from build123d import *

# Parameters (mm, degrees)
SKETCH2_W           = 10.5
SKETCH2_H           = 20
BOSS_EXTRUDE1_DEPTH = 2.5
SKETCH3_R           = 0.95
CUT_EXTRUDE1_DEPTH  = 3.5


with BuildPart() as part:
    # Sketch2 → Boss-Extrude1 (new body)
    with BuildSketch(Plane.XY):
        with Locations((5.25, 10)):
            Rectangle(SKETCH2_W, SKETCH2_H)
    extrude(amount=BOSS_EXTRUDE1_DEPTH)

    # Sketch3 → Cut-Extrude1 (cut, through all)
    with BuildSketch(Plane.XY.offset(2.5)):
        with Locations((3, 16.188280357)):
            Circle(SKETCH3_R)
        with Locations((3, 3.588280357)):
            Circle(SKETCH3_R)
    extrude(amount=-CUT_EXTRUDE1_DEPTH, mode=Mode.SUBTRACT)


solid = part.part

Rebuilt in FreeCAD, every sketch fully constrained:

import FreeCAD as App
import Part
import Sketcher
Q = App.Units.Quantity

doc = App.newDocument("Part")
params = doc.addObject("Spreadsheet::Sheet", "Params")
for row, (alias, value) in enumerate([
    ("sketch1_height", "20 mm"),
    ("sketch1_width", "10.5 mm"),
    ("pad1_length", "2.5 mm"),
    ("sketch2_diameter", "1.9 mm"),
], start=1):
    params.set(f"A{row}", alias)
    params.set(f"B{row}", "=" + value)
    params.setAlias(f"B{row}", alias)

body = doc.addObject("PartDesign::Body", "Body")

sketch1 = doc.addObject("Sketcher::SketchObject", "Sketch")
body.addObject(sketch1)
sketch1.AttachmentSupport = (doc.XY_Plane, [""])
sketch1.MapMode = "FlatFace"
sketch1.addGeometry([
    Part.LineSegment(App.Vector(0, 20, 0), App.Vector(0, 0, 0)),
    Part.LineSegment(App.Vector(0, 0, 0), App.Vector(10.5, 0, 0)),
    Part.LineSegment(App.Vector(10.5, 0, 0), App.Vector(10.5, 20, 0)),
    Part.LineSegment(App.Vector(10.5, 20, 0), App.Vector(0, 20, 0)),
], False)
sketch1.addConstraint([
    Sketcher.Constraint("Coincident", 0, 2, 1, 1),
    Sketcher.Constraint("Coincident", 1, 2, 2, 1),
    Sketcher.Constraint("Coincident", 2, 2, 3, 1),
    Sketcher.Constraint("Coincident", 3, 2, 0, 1),
    Sketcher.Constraint("Vertical", 0),
    Sketcher.Constraint("Horizontal", 1),
    Sketcher.Constraint("Vertical", 2),
    Sketcher.Constraint("Horizontal", 3),
    Sketcher.Constraint("Coincident", 0, 2, -1, 1),
    Sketcher.Constraint("DistanceY", 0, 2, 0, 1, Q("20 mm")),
    Sketcher.Constraint("DistanceX", 1, 1, 1, 2, Q("10.5 mm")),
])
sketch1.setExpression("Constraints[9]", "Params.sketch1_height")
sketch1.setExpression("Constraints[10]", "Params.sketch1_width")
pad1 = doc.addObject("PartDesign::Pad", "Pad")
body.addObject(pad1)
pad1.Profile = sketch1
pad1.setExpression("Length", "Params.pad1_length")

sketch2 = doc.addObject("Sketcher::SketchObject", "Sketch001")
body.addObject(sketch2)
sketch2.AttachmentSupport = (doc.XY_Plane, [""])
sketch2.MapMode = "FlatFace"
sketch2.AttachmentOffset = App.Placement(App.Vector(0, 0, 2.5), App.Rotation())
sketch2.addGeometry([
    Part.Circle(App.Vector(3, 16.18828, 0), App.Vector(0, 0, 1), 0.95),
    Part.Circle(App.Vector(3, 3.58828, 0), App.Vector(0, 0, 1), 0.95),
], False)
sketch2.addConstraint([
    Sketcher.Constraint("Equal", 0, 1),
    Sketcher.Constraint("Vertical", 0, 3, 1, 3),
    Sketcher.Constraint("Diameter", 0, Q("1.9 mm")),
    Sketcher.Constraint("DistanceX", -1, 1, 0, 3, Q("3 mm")),
    Sketcher.Constraint("DistanceY", 1, 3, 0, 3, Q("12.6 mm")),
    Sketcher.Constraint("DistanceY", -1, 1, 0, 3, Q("16.18828 mm")),
])
sketch2.setExpression("Constraints[2]", "Params.sketch2_diameter")
pocket1 = doc.addObject("PartDesign::Pocket", "Pocket")
body.addObject(pocket1)
pocket1.Profile = sketch2
pocket1.Type = "ThroughAll"

doc.recompute()
